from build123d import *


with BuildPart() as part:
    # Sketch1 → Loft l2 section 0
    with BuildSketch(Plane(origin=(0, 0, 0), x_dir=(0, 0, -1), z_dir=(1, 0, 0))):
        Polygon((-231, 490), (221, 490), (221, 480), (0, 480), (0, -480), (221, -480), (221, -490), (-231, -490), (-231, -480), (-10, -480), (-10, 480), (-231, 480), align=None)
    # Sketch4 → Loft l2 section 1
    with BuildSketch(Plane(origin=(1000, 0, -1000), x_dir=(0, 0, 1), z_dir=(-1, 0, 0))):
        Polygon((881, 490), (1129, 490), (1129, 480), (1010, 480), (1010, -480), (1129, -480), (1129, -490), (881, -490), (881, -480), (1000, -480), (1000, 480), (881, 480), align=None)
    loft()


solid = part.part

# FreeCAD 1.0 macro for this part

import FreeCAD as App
import Part
import Sketcher

V = App.Vector

doc = App.newDocument("Part")
params = doc.addObject("Spreadsheet::Sheet", "Params")
for row, (alias, value) in enumerate([
    ("sketch1_width", "10 mm"),
    ("sketch1_width2", "960 mm"),
    ("sketch1_height", "452 mm"),
    ("sketch1_height2", "221 mm"),
    ("sketch2_width", "10 mm"),
    ("sketch2_width2", "960 mm"),
    ("sketch2_height", "248 mm"),
    ("sketch2_height2", "119 mm"),
], start=1):
    params.set(f"A{row}", alias)
    params.set(f"B{row}", "=" + value)
    params.setAlias(f"B{row}", alias)

body = doc.addObject("PartDesign::Body", "Body")

sketch1 = doc.addObject("Sketcher::SketchObject", "Sketch")
body.addObject(sketch1)
sketch1.AttachmentSupport = (doc.YZ_Plane, [""])
sketch1.MapMode = "FlatFace"
sketch1.addGeometry([
    Part.LineSegment(V(490, -221, 0), V(490, 231, 0)),
    Part.LineSegment(V(490, 231, 0), V(480, 231, 0)),
    Part.LineSegment(V(480, 231, 0), V(480, 10, 0)),
    Part.LineSegment(V(480, 10, 0), V(-480, 10, 0)),
    Part.LineSegment(V(-480, 10, 0), V(-480, 231, 0)),
    Part.LineSegment(V(-480, 231, 0), V(-490, 231, 0)),
    Part.LineSegment(V(-490, 231, 0), V(-490, -221, 0)),
    Part.LineSegment(V(-490, -221, 0), V(-480, -221, 0)),
    Part.LineSegment(V(-480, -221, 0), V(-480, 0, 0)),
    Part.LineSegment(V(-480, 0, 0), V(480, 0, 0)),
    Part.LineSegment(V(480, 0, 0), V(480, -221, 0)),
    Part.LineSegment(V(480, -221, 0), V(490, -221, 0)),
], False)
sketch1.addConstraint([
    Sketcher.Constraint("Coincident", 0, 2, 1, 1),
    Sketcher.Constraint("Coincident", 1, 2, 2, 1),
    Sketcher.Constraint("Coincident", 2, 2, 3, 1),
    Sketcher.Constraint("Coincident", 3, 2, 4, 1),
    Sketcher.Constraint("Coincident", 4, 2, 5, 1),
    Sketcher.Constraint("Coincident", 5, 2, 6, 1),
    Sketcher.Constraint("Coincident", 6, 2, 7, 1),
    Sketcher.Constraint("Coincident", 7, 2, 8, 1),
    Sketcher.Constraint("Coincident", 8, 2, 9, 1),
    Sketcher.Constraint("Coincident", 9, 2, 10, 1),
    Sketcher.Constraint("Coincident", 10, 2, 11, 1),
    Sketcher.Constraint("Coincident", 11, 2, 0, 1),
    Sketcher.Constraint("Vertical", 0),
    Sketcher.Constraint("Horizontal", 1),
    Sketcher.Constraint("Vertical", 2),
    Sketcher.Constraint("Horizontal", 3),
    Sketcher.Constraint("Vertical", 4),
    Sketcher.Constraint("Horizontal", 5),
    Sketcher.Constraint("Vertical", 6),
    Sketcher.Constraint("Horizontal", 7),
    Sketcher.Constraint("Vertical", 8),
    Sketcher.Constraint("Horizontal", 9),
    Sketcher.Constraint("Vertical", 10),
    Sketcher.Constraint("Horizontal", 11),
    Sketcher.Constraint("Symmetric", 8, 2, 9, 2, -1, 1),
    Sketcher.Constraint("Symmetric", 1, 2, 4, 2, -2),
    Sketcher.Constraint("Symmetric", 6, 2, 11, 2, -2),
    Sketcher.Constraint("Vertical", 4, 2, 7, 2),
    Sketcher.Constraint("Equal", 4, 8),
    Sketcher.Constraint("DistanceX", 1, 2, 1, 1, 10.0),
    Sketcher.Constraint("DistanceX", 3, 2, 3, 1, 960.0),
    Sketcher.Constraint("DistanceY", 0, 1, 0, 2, 452.0),
    Sketcher.Constraint("DistanceY", 2, 2, 2, 1, 221.0),
])
sketch1.setExpression("Constraints[29]", "Params.sketch1_width")
sketch1.setExpression("Constraints[30]", "Params.sketch1_width2")
sketch1.setExpression("Constraints[31]", "Params.sketch1_height")
sketch1.setExpression("Constraints[32]", "Params.sketch1_height2")

sketch2 = doc.addObject("Sketcher::SketchObject", "Sketch001")
body.addObject(sketch2)
sketch2.AttachmentSupport = (doc.YZ_Plane, [""])
sketch2.MapMode = "FlatFace"
sketch2.AttachmentOffset = App.Placement(V(0, 0, 1000), App.Rotation())
sketch2.addGeometry([
    Part.LineSegment(V(490, 129, 0), V(490, -119, 0)),
    Part.LineSegment(V(490, -119, 0), V(480, -119, 0)),
    Part.LineSegment(V(480, -119, 0), V(480, 0, 0)),
    Part.LineSegment(V(480, 0, 0), V(-480, 0, 0)),
    Part.LineSegment(V(-480, 0, 0), V(-480, -119, 0)),
    Part.LineSegment(V(-480, -119, 0), V(-490, -119, 0)),
    Part.LineSegment(V(-490, -119, 0), V(-490, 129, 0)),
    Part.LineSegment(V(-490, 129, 0), V(-480, 129, 0)),
    Part.LineSegment(V(-480, 129, 0), V(-480, 10, 0)),
    Part.LineSegment(V(-480, 10, 0), V(480, 10, 0)),
    Part.LineSegment(V(480, 10, 0), V(480, 129, 0)),
    Part.LineSegment(V(480, 129, 0), V(490, 129, 0)),
], False)
sketch2.addConstraint([
    Sketcher.Constraint("Coincident", 0, 2, 1, 1),
    Sketcher.Constraint("Coincident", 1, 2, 2, 1),
    Sketcher.Constraint("Coincident", 2, 2, 3, 1),
    Sketcher.Constraint("Coincident", 3, 2, 4, 1),
    Sketcher.Constraint("Coincident", 4, 2, 5, 1),
    Sketcher.Constraint("Coincident", 5, 2, 6, 1),
    Sketcher.Constraint("Coincident", 6, 2, 7, 1),
    Sketcher.Constraint("Coincident", 7, 2, 8, 1),
    Sketcher.Constraint("Coincident", 8, 2, 9, 1),
    Sketcher.Constraint("Coincident", 9, 2, 10, 1),
    Sketcher.Constraint("Coincident", 10, 2, 11, 1),
    Sketcher.Constraint("Coincident", 11, 2, 0, 1),
    Sketcher.Constraint("Vertical", 0),
    Sketcher.Constraint("Horizontal", 1),
    Sketcher.Constraint("Vertical", 2),
    Sketcher.Constraint("Horizontal", 3),
    Sketcher.Constraint("Vertical", 4),
    Sketcher.Constraint("Horizontal", 5),
    Sketcher.Constraint("Vertical", 6),
    Sketcher.Constraint("Horizontal", 7),
    Sketcher.Constraint("Vertical", 8),
    Sketcher.Constraint("Horizontal", 9),
    Sketcher.Constraint("Vertical", 10),
    Sketcher.Constraint("Horizontal", 11),
    Sketcher.Constraint("Symmetric", 2, 2, 3, 2, -1, 1),
    Sketcher.Constraint("Symmetric", 0, 2, 5, 2, -2),
    Sketcher.Constraint("Symmetric", 7, 2, 10, 2, -2),
    Sketcher.Constraint("Vertical", 4, 2, 7, 2),
    Sketcher.Constraint("Equal", 4, 8),
    Sketcher.Constraint("DistanceX", 1, 2, 1, 1, 10.0),
    Sketcher.Constraint("DistanceX", 3, 2, 3, 1, 960.0),
    Sketcher.Constraint("DistanceY", 0, 2, 0, 1, 248.0),
    Sketcher.Constraint("DistanceY", 2, 1, 2, 2, 119.0),
])
sketch2.setExpression("Constraints[29]", "Params.sketch2_width")
sketch2.setExpression("Constraints[30]", "Params.sketch2_width2")
sketch2.setExpression("Constraints[31]", "Params.sketch2_height")
sketch2.setExpression("Constraints[32]", "Params.sketch2_height2")

additiveloft = doc.addObject("PartDesign::AdditiveLoft", "AdditiveLoft")
body.addObject(additiveloft)
additiveloft.Profile = sketch1
additiveloft.Sections = [sketch2]

doc.recompute()
